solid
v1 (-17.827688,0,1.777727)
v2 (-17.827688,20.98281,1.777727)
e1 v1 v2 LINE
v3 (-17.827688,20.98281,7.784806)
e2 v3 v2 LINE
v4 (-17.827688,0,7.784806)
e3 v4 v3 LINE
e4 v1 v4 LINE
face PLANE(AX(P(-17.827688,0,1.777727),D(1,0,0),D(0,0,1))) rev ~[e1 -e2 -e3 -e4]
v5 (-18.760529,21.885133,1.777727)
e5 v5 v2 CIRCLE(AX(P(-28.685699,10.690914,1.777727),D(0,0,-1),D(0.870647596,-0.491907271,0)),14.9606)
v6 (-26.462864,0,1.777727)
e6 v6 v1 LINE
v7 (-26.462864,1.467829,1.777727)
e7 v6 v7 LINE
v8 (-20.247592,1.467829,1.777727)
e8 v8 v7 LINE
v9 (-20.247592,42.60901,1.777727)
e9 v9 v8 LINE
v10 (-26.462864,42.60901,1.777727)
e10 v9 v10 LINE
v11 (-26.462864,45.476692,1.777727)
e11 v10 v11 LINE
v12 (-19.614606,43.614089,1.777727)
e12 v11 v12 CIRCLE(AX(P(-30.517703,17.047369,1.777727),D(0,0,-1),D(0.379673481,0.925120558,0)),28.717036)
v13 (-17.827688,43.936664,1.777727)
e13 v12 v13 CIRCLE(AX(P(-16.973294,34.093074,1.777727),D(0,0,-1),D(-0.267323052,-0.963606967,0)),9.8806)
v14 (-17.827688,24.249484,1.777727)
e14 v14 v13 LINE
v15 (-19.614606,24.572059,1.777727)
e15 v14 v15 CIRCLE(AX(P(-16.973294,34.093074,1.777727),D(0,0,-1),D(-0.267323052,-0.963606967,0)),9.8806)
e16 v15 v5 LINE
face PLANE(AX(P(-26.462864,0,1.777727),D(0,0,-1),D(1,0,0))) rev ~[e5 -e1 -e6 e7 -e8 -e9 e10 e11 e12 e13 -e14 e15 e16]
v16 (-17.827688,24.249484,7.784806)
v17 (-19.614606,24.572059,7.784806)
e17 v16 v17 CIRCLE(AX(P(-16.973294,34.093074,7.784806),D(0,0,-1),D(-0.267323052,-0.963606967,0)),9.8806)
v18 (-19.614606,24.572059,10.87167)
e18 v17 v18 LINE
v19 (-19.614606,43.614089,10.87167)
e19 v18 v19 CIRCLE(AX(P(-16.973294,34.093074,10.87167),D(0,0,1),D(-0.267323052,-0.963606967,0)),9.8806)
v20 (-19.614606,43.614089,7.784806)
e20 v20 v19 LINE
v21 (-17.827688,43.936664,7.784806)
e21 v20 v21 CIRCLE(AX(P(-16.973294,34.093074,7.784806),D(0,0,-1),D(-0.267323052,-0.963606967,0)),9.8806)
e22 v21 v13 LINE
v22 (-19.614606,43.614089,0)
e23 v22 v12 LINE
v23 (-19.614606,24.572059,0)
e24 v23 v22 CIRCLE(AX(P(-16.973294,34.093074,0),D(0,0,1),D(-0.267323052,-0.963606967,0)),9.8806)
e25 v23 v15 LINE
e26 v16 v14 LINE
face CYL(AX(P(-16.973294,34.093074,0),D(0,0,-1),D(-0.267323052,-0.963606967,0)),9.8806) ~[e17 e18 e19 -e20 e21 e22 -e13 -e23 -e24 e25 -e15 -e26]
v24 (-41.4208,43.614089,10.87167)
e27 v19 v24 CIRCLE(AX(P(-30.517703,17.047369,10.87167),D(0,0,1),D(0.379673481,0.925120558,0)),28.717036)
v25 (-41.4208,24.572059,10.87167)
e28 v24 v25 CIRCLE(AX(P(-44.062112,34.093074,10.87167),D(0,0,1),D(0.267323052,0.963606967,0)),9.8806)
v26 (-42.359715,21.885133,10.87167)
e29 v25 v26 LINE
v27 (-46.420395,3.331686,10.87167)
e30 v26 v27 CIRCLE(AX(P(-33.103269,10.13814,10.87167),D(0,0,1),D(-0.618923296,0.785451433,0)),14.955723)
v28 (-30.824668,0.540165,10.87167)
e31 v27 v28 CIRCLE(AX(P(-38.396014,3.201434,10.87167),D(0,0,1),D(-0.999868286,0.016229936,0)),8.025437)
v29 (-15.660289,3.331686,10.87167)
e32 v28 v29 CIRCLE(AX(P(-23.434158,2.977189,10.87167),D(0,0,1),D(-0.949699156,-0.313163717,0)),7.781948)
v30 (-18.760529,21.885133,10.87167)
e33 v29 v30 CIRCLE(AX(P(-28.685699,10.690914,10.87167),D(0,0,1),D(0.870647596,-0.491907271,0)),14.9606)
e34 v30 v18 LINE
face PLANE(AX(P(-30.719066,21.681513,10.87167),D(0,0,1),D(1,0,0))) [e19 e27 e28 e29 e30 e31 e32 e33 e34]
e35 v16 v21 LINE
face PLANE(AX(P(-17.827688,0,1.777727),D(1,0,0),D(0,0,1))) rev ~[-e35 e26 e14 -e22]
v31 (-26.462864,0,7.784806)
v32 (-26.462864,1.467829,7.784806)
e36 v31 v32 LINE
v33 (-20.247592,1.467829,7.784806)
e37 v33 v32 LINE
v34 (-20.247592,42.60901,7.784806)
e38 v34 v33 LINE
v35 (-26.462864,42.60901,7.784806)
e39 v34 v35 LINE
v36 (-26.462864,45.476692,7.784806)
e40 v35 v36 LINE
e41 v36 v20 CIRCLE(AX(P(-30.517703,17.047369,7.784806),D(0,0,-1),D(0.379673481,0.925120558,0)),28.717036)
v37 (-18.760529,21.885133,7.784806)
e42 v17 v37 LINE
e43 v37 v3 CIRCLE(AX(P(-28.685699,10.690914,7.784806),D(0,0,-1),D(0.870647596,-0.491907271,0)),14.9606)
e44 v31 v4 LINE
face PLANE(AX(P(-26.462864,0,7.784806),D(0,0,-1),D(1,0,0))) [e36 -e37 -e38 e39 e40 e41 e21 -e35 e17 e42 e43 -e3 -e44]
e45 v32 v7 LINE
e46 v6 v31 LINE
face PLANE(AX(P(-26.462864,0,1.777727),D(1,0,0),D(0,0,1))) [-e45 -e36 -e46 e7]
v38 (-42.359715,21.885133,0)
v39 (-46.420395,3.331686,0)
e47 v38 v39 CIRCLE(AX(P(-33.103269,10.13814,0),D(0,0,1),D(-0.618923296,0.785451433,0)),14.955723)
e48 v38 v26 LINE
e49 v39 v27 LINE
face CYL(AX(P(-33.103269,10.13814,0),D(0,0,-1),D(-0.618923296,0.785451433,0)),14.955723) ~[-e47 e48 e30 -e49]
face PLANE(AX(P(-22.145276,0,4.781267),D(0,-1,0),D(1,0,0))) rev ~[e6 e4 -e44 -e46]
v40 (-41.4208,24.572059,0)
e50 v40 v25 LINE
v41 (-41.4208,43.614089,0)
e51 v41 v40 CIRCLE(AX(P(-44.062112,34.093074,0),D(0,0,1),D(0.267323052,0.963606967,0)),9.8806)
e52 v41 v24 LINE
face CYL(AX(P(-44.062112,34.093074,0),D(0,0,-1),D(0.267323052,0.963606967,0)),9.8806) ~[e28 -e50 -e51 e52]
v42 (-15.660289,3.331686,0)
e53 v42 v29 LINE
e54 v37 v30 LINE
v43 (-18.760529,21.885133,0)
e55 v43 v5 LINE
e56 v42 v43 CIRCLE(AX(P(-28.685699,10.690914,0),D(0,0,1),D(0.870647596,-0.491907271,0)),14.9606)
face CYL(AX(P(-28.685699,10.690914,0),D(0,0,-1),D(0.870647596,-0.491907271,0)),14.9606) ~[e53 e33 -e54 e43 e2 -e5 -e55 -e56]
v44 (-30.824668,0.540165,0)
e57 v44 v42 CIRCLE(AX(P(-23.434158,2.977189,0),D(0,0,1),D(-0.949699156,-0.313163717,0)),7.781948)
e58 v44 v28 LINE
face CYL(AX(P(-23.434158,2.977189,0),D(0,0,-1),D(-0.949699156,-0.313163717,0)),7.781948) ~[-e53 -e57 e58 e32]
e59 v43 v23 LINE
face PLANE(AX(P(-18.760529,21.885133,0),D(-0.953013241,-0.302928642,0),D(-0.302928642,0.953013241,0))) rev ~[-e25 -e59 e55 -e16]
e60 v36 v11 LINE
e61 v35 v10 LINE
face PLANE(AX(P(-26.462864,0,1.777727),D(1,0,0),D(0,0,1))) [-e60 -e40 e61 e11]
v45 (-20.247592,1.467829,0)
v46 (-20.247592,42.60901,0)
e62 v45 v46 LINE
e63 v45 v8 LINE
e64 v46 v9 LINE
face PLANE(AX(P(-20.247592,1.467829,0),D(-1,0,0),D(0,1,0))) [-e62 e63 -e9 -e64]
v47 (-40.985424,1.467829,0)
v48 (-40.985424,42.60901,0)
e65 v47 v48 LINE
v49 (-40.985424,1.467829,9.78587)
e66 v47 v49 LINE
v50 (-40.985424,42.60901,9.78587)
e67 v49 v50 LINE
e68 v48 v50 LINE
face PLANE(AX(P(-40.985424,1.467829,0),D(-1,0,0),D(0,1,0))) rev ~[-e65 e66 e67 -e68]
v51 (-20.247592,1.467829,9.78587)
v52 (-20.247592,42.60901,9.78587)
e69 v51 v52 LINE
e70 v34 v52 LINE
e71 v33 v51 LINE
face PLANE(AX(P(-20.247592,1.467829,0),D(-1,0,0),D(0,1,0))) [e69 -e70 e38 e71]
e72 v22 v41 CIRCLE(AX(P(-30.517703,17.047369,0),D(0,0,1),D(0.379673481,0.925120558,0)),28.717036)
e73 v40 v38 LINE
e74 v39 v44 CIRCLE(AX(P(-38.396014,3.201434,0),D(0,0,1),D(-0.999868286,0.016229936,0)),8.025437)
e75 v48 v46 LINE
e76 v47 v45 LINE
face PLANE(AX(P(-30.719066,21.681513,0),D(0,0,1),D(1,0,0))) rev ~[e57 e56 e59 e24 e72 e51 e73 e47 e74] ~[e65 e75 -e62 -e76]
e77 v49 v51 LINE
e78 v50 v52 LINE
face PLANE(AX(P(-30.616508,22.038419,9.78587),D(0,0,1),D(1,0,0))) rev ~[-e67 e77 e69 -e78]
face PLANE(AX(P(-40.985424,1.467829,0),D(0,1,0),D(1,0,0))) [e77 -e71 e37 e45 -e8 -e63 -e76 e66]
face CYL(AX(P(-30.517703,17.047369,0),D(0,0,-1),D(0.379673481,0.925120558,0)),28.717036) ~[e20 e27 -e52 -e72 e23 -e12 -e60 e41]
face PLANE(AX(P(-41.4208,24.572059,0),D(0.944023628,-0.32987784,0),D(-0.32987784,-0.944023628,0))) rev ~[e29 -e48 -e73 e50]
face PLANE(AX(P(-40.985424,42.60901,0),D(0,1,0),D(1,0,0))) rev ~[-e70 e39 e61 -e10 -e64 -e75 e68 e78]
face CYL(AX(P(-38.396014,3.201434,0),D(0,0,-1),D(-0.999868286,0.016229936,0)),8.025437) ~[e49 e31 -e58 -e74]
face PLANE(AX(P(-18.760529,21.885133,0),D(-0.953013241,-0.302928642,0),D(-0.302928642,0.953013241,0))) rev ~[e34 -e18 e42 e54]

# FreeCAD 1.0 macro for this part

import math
import FreeCAD as App
import Part
import Sketcher
Q = App.Units.Quantity


def add_polygon(sketch, points):
    """Adds a closed chain of lines whose ends are joined by coincident constraints."""
    first, n = sketch.GeometryCount, len(points)
    for a, b in zip(points, points[1:] + points[:1]):
        sketch.addGeometry(Part.LineSegment(App.Vector(*a, 0), App.Vector(*b, 0)), False)
    for i in range(n):
        sketch.addConstraint(Sketcher.Constraint("Coincident", first + i, 2, first + (i + 1) % n, 1))

doc = App.newDocument("Part")
body = doc.addObject("PartDesign::Body", "Body")

# Sketch on XY plane
sketch1 = body.newObject("Sketcher::SketchObject", "Sketch")
sketch1.AttachmentSupport = (doc.getObject("XY_Plane"), [""])
sketch1.MapMode = "FlatFace"
sketch1.addGeometry(Part.ArcOfCircle(Part.Circle(App.Vector(-28.7, 10.7, 0), App.Vector(0, 0, 1), 15), math.radians(-29), math.radians(48)), False)
sketch1.addGeometry(Part.LineSegment(App.Vector(-18.8, 21.9, 0), App.Vector(-19.6, 24.6, 0)), False)
sketch1.addGeometry(Part.ArcOfCircle(Part.Circle(App.Vector(-17, 34.1, 0), App.Vector(0, 0, 1), 9.9), math.radians(-106), math.radians(106)), False)
sketch1.addGeometry(Part.ArcOfCircle(Part.Circle(App.Vector(-30.5, 17, 0), App.Vector(0, 0, 1), 28.7), math.radians(68), math.radians(112)), False)
sketch1.addGeometry(Part.ArcOfCircle(Part.Circle(App.Vector(-44.1, 34.1, 0), App.Vector(0, 0, 1), 9.9), math.radians(74), math.radians(286)), False)
sketch1.addGeometry(Part.LineSegment(App.Vector(-41.4, 24.6, 0), App.Vector(-42.4, 21.9, 0)), False)
sketch1.addGeometry(Part.ArcOfCircle(Part.Circle(App.Vector(-33.1, 10.1, 0), App.Vector(0, 0, 1), 15), math.radians(128), math.radians(207)), False)
sketch1.addGeometry(Part.ArcOfCircle(Part.Circle(App.Vector(-38.4, 3.2, 0), App.Vector(0, 0, 1), 8), math.radians(179), math.radians(341)), False)
sketch1.addGeometry(Part.ArcOfCircle(Part.Circle(App.Vector(-23.4, 3, 0), App.Vector(0, 0, 1), 7.8), math.radians(-162), math.radians(3)), False)
sketch1.addConstraint(Sketcher.Constraint("Coincident", 0, 2, 1, 1))
sketch1.addConstraint(Sketcher.Constraint("Coincident", 1, 2, 2, 1))
sketch1.addConstraint(Sketcher.Constraint("Coincident", 2, 2, 3, 1))
sketch1.addConstraint(Sketcher.Constraint("Coincident", 3, 2, 4, 1))
sketch1.addConstraint(Sketcher.Constraint("Coincident", 4, 2, 5, 1))
sketch1.addConstraint(Sketcher.Constraint("Coincident", 5, 2, 6, 1))
sketch1.addConstraint(Sketcher.Constraint("Coincident", 6, 2, 7, 1))
sketch1.addConstraint(Sketcher.Constraint("Coincident", 7, 2, 8, 1))
sketch1.addConstraint(Sketcher.Constraint("Coincident", 8, 2, 0, 1))
sketch1.addConstraint(Sketcher.Constraint("Equal", 2, 4))
sketch1.addConstraint(Sketcher.Constraint("Horizontal", 2, 3, 4, 3))
sketch1.addConstraint(Sketcher.Constraint("Horizontal", 2, 2, 3, 2))
sketch1.addConstraint(Sketcher.Constraint("Horizontal", 1, 2, 4, 2))
sketch1.addConstraint(Sketcher.Constraint("Horizontal", 0, 2, 5, 2))
sketch1.addConstraint(Sketcher.Constraint("Horizontal", 6, 2, 8, 2))
sketch1.addConstraint(Sketcher.Constraint("Vertical", 1, 2, 2, 2))
sketch1.addConstraint(Sketcher.Constraint("Radius", 0, Q("0.589 in")))
sketch1.addConstraint(Sketcher.Constraint("Radius", 2, Q("0.389 in")))
sketch1.addConstraint(Sketcher.Constraint("Distance", 1, Q("0.111 in")))
sketch1.addConstraint(Sketcher.Constraint("Radius", 3, 28.717036))
sketch1.addConstraint(Sketcher.Constraint("Radius", 6, 14.955723))
sketch1.addConstraint(Sketcher.Constraint("Radius", 7, 8.025437))
sketch1.addConstraint(Sketcher.Constraint("Radius", 8, 7.781948))
sketch1.addConstraint(Sketcher.Constraint("DistanceX", 0, 3, -1, 1, 28.685699))
sketch1.addConstraint(Sketcher.Constraint("DistanceX", 3, 2, -1, 1, 41.4208))
sketch1.addConstraint(Sketcher.Constraint("DistanceX", 6, 3, 7, 2, 2.278602))
sketch1.addConstraint(Sketcher.Constraint("Distance", 5, 2.846248))
sketch1.addConstraint(Sketcher.Constraint("DistanceY", -1, 1, 3, 3, 17.047369))
sketch1.addConstraint(Sketcher.Constraint("DistanceX", 6, 3, -1, 1, 33.103269))
sketch1.addConstraint(Sketcher.Constraint("DistanceY", -1, 1, 6, 3, 10.13814))
sketch1.addConstraint(Sketcher.Constraint("DistanceX", 8, 3, -1, 1, 23.434158))
sketch1.addConstraint(Sketcher.Constraint("DistanceY", -1, 1, 8, 3, 2.977189))
sketch1.addConstraint(Sketcher.Constraint("DistanceX", 0, 2, -1, 1, 18.760529))
sketch1.addConstraint(Sketcher.Constraint("DistanceY", -1, 1, 1, 2, 24.572059))
pad1 = body.newObject("PartDesign::Pad", "Pad")
pad1.Profile = sketch1
pad1.Length = 10.87167

# Sketch on XY plane
sketch2 = body.newObject("Sketcher::SketchObject", "Sketch001")
sketch2.AttachmentSupport = (doc.getObject("XY_Plane"), [""])
sketch2.MapMode = "FlatFace"
add_polygon(sketch2, [(-41, 43), (-41, 1), (-20, 1), (-20, 43)])  # lines 0-3
sketch2.addConstraint(Sketcher.Constraint("Vertical", 0))
sketch2.addConstraint(Sketcher.Constraint("Horizontal", 1))
sketch2.addConstraint(Sketcher.Constraint("Vertical", 2))
sketch2.addConstraint(Sketcher.Constraint("Horizontal", 3))
sketch2.addConstraint(Sketcher.Constraint("DistanceY", 0, 2, 0, 1, 41.141181))
sketch2.addConstraint(Sketcher.Constraint("DistanceX", 1, 1, 1, 2, 20.737832))
sketch2.addConstraint(Sketcher.Constraint("DistanceY", -1, 1, 0, 2, 1.467829))
sketch2.addConstraint(Sketcher.Constraint("DistanceX", 1, 2, -1, 1, 20.247592))
pocket1 = body.newObject("PartDesign::Pocket", "Pocket")
pocket1.Profile = sketch2
pocket1.Length = 9.78587
pocket1.Reversed = True

# Sketch on XZ plane
sketch3 = body.newObject("Sketcher::SketchObject", "Sketch002")
sketch3.AttachmentSupport = (doc.getObject("XZ_Plane"), [""])
sketch3.MapMode = "FlatFace"
add_polygon(sketch3, [(-26, 8), (-26, 2), (-18, 2), (-18, 8)])  # lines 0-3
sketch3.addConstraint(Sketcher.Constraint("Vertical", 0))
sketch3.addConstraint(Sketcher.Constraint("Horizontal", 1))
sketch3.addConstraint(Sketcher.Constraint("Vertical", 2))
sketch3.addConstraint(Sketcher.Constraint("Horizontal", 3))
sketch3.addConstraint(Sketcher.Constraint("DistanceY", 0, 2, 0, 1, 6.007078))
sketch3.addConstraint(Sketcher.Constraint("DistanceX", 1, 1, 1, 2, 8.635176))
sketch3.addConstraint(Sketcher.Constraint("DistanceX", 0, 2, -1, 1, 26.462864))
sketch3.addConstraint(Sketcher.Constraint("DistanceY", -1, 1, 0, 2, 1.777727))
pocket2 = body.newObject("PartDesign::Pocket", "Pocket001")
pocket2.Profile = sketch3
pocket2.Length = 63.13654

doc.recompute()
